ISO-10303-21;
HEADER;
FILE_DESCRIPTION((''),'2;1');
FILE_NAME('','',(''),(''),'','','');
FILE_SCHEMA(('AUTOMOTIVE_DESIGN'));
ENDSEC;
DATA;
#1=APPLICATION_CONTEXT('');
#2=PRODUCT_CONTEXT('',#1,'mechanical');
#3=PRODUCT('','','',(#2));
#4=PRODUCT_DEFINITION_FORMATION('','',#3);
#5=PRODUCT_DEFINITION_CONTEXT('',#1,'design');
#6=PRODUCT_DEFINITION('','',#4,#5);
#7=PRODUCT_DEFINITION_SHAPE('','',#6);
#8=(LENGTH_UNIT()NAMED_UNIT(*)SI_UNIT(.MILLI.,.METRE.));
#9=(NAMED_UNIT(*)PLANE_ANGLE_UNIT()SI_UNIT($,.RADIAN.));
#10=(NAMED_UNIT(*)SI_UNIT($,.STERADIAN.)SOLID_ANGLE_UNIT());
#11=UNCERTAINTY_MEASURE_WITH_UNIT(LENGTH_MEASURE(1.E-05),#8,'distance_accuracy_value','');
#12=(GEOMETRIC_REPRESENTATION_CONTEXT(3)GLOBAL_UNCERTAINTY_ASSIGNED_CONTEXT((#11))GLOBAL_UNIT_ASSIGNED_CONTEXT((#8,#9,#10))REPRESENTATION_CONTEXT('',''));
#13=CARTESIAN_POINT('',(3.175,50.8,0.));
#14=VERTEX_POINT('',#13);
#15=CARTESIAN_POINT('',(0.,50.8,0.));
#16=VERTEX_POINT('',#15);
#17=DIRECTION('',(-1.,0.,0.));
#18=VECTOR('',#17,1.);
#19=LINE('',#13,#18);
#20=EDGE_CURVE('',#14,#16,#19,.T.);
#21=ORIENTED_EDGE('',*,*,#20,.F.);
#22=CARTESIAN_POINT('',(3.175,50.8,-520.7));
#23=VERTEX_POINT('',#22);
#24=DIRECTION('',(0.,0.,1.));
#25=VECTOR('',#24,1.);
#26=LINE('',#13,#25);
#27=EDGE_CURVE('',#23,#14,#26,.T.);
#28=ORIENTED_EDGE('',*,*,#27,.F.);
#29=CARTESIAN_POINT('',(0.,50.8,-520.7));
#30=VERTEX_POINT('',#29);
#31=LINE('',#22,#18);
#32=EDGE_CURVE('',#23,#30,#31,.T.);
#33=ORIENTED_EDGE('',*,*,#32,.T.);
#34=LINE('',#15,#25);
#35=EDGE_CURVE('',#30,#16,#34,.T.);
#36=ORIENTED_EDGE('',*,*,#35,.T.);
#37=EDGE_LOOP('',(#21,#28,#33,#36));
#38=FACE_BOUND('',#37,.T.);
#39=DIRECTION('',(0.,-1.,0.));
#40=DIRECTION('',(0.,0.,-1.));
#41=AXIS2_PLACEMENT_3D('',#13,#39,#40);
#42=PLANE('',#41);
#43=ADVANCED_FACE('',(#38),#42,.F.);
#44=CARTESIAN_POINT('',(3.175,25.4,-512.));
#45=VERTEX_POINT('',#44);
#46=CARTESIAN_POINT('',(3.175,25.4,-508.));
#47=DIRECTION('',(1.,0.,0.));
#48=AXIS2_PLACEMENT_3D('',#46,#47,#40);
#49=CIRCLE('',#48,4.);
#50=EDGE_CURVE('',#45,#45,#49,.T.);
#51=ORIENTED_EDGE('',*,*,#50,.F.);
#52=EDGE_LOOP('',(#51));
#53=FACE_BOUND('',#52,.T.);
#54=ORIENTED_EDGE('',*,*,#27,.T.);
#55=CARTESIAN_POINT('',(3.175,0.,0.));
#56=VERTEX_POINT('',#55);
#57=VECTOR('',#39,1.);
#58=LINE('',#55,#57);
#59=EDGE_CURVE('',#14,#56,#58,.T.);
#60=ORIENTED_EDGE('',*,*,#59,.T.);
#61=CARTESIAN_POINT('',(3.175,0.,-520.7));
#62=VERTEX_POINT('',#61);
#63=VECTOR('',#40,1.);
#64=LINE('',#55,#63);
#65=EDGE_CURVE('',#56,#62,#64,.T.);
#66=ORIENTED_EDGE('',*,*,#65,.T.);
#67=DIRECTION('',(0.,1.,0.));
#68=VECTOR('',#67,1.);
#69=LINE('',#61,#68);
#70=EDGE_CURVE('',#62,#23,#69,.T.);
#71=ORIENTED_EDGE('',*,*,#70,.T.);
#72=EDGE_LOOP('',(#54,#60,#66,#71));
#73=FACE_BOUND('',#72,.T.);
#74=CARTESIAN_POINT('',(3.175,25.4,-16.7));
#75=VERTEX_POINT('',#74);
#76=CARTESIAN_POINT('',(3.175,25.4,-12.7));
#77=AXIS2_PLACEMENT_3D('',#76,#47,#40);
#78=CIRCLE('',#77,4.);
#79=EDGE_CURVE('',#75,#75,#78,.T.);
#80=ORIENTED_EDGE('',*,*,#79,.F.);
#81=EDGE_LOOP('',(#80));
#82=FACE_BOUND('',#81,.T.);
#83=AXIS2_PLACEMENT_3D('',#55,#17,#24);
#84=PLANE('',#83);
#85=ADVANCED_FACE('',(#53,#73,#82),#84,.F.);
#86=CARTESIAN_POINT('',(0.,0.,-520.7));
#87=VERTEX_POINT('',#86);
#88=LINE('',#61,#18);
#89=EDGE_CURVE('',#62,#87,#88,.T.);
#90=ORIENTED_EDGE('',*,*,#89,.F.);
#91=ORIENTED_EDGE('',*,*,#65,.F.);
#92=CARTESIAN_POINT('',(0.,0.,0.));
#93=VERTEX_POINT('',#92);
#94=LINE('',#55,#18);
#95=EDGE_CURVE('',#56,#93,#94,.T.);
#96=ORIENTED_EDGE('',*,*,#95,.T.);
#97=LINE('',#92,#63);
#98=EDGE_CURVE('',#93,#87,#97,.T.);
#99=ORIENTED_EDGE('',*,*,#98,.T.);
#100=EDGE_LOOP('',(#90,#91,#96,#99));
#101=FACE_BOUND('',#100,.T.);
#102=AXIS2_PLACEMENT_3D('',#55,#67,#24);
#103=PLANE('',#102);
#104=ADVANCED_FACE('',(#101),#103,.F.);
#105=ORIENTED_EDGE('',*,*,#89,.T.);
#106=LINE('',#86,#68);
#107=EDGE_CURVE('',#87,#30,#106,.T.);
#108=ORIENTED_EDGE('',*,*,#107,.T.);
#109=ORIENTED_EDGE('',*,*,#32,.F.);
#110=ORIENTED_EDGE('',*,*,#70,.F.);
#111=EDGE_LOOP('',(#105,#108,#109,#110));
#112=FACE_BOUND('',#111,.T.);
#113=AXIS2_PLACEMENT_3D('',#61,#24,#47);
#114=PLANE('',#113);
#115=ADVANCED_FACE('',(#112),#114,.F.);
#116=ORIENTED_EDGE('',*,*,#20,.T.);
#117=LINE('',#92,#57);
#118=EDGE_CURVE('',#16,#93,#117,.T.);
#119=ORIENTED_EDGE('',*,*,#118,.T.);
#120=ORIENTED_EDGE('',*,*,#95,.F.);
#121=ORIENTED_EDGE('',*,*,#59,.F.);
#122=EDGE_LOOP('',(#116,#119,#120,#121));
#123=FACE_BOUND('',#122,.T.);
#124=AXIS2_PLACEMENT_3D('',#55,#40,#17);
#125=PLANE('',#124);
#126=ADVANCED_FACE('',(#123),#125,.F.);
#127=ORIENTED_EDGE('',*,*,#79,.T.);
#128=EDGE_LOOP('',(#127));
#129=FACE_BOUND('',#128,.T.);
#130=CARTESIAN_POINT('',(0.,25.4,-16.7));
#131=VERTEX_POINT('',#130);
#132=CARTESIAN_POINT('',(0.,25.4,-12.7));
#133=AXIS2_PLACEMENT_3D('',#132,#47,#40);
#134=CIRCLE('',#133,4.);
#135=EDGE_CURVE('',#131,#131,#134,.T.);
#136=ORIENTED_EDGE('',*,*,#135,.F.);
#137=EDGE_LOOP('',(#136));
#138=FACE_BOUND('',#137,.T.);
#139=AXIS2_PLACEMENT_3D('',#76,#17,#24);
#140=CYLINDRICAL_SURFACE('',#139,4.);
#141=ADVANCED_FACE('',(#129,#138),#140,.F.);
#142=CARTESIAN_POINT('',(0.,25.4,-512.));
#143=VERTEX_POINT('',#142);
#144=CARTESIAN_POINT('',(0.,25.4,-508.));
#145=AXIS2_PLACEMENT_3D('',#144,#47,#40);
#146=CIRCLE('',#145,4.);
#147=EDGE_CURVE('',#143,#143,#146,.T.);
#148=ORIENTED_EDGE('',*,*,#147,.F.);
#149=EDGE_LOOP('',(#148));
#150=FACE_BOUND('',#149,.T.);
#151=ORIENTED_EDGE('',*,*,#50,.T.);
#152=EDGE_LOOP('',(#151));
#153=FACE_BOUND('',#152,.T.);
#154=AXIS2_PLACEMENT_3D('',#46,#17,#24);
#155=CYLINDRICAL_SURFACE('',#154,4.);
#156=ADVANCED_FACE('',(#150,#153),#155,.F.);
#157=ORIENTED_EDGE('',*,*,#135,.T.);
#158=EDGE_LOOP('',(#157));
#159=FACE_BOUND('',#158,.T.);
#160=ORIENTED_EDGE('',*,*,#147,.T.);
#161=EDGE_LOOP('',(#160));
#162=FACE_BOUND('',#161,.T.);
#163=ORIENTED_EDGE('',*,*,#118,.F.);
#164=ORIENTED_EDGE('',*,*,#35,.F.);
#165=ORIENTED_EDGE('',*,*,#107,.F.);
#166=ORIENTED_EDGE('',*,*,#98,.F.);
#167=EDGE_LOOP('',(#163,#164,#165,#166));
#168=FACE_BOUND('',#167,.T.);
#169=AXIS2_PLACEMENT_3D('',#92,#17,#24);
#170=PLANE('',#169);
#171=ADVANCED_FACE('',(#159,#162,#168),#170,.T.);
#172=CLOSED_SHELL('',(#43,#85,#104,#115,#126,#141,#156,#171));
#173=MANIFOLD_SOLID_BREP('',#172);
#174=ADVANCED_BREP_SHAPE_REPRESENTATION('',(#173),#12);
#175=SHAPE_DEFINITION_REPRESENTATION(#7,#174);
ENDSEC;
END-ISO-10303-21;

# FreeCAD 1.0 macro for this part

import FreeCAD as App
import Part
import Sketcher
Q = App.Units.Quantity

doc = App.newDocument("Part")
body = doc.addObject("PartDesign::Body", "Body")

# Sketch on YZ plane
sketch1 = doc.addObject("Sketcher::SketchObject", "Sketch")
body.addObject(sketch1)
sketch1.AttachmentSupport = (doc.YZ_Plane, [""])
sketch1.MapMode = "FlatFace"
sketch1.addGeometry([
    Part.LineSegment(App.Vector(50.8, 0, 0), App.Vector(0, 0, 0)),  # 0
    Part.LineSegment(App.Vector(0, 0, 0), App.Vector(0, -520.7, 0)),  # 1
    Part.LineSegment(App.Vector(0, -520.7, 0), App.Vector(50.8, -520.7, 0)),  # 2
    Part.LineSegment(App.Vector(50.8, -520.7, 0), App.Vector(50.8, 0, 0)),  # 3
    Part.Circle(App.Vector(25.4, -12.7, 0), App.Vector(0, 0, 1), 4),  # 4
    Part.Circle(App.Vector(25.4, -508, 0), App.Vector(0, 0, 1), 4),  # 5
], False)
sketch1.addConstraint([
    Sketcher.Constraint("Coincident", 0, 2, 1, 1),
    Sketcher.Constraint("Coincident", 1, 2, 2, 1),
    Sketcher.Constraint("Coincident", 2, 2, 3, 1),
    Sketcher.Constraint("Coincident", 3, 2, 0, 1),
    Sketcher.Constraint("Horizontal", 0),
    Sketcher.Constraint("Vertical", 1),
    Sketcher.Constraint("Horizontal", 2),
    Sketcher.Constraint("Vertical", 3),
    Sketcher.Constraint("Coincident", 0, 2, -1, 1),
    Sketcher.Constraint("Equal", 4, 5),
    Sketcher.Constraint("Vertical", 4, 3, 5, 3),
    Sketcher.Constraint("DistanceX", 0, 2, 0, 1, Q("2 in")),
    Sketcher.Constraint("DistanceY", 1, 2, 1, 1, Q("20.5 in")),
    Sketcher.Constraint("DistanceX", -1, 1, 4, 3, Q("1 in")),
    Sketcher.Constraint("DistanceY", 5, 3, -1, 1, Q("20 in")),
    Sketcher.Constraint("DistanceY", 1, 2, 4, 3, Q("20 in")),
    Sketcher.Constraint("Diameter", 4, 8.0),
])
pad1 = doc.addObject("PartDesign::Pad", "Pad")
body.addObject(pad1)
pad1.Profile = sketch1
pad1.Length = Q("0.125 in")

doc.recompute()
